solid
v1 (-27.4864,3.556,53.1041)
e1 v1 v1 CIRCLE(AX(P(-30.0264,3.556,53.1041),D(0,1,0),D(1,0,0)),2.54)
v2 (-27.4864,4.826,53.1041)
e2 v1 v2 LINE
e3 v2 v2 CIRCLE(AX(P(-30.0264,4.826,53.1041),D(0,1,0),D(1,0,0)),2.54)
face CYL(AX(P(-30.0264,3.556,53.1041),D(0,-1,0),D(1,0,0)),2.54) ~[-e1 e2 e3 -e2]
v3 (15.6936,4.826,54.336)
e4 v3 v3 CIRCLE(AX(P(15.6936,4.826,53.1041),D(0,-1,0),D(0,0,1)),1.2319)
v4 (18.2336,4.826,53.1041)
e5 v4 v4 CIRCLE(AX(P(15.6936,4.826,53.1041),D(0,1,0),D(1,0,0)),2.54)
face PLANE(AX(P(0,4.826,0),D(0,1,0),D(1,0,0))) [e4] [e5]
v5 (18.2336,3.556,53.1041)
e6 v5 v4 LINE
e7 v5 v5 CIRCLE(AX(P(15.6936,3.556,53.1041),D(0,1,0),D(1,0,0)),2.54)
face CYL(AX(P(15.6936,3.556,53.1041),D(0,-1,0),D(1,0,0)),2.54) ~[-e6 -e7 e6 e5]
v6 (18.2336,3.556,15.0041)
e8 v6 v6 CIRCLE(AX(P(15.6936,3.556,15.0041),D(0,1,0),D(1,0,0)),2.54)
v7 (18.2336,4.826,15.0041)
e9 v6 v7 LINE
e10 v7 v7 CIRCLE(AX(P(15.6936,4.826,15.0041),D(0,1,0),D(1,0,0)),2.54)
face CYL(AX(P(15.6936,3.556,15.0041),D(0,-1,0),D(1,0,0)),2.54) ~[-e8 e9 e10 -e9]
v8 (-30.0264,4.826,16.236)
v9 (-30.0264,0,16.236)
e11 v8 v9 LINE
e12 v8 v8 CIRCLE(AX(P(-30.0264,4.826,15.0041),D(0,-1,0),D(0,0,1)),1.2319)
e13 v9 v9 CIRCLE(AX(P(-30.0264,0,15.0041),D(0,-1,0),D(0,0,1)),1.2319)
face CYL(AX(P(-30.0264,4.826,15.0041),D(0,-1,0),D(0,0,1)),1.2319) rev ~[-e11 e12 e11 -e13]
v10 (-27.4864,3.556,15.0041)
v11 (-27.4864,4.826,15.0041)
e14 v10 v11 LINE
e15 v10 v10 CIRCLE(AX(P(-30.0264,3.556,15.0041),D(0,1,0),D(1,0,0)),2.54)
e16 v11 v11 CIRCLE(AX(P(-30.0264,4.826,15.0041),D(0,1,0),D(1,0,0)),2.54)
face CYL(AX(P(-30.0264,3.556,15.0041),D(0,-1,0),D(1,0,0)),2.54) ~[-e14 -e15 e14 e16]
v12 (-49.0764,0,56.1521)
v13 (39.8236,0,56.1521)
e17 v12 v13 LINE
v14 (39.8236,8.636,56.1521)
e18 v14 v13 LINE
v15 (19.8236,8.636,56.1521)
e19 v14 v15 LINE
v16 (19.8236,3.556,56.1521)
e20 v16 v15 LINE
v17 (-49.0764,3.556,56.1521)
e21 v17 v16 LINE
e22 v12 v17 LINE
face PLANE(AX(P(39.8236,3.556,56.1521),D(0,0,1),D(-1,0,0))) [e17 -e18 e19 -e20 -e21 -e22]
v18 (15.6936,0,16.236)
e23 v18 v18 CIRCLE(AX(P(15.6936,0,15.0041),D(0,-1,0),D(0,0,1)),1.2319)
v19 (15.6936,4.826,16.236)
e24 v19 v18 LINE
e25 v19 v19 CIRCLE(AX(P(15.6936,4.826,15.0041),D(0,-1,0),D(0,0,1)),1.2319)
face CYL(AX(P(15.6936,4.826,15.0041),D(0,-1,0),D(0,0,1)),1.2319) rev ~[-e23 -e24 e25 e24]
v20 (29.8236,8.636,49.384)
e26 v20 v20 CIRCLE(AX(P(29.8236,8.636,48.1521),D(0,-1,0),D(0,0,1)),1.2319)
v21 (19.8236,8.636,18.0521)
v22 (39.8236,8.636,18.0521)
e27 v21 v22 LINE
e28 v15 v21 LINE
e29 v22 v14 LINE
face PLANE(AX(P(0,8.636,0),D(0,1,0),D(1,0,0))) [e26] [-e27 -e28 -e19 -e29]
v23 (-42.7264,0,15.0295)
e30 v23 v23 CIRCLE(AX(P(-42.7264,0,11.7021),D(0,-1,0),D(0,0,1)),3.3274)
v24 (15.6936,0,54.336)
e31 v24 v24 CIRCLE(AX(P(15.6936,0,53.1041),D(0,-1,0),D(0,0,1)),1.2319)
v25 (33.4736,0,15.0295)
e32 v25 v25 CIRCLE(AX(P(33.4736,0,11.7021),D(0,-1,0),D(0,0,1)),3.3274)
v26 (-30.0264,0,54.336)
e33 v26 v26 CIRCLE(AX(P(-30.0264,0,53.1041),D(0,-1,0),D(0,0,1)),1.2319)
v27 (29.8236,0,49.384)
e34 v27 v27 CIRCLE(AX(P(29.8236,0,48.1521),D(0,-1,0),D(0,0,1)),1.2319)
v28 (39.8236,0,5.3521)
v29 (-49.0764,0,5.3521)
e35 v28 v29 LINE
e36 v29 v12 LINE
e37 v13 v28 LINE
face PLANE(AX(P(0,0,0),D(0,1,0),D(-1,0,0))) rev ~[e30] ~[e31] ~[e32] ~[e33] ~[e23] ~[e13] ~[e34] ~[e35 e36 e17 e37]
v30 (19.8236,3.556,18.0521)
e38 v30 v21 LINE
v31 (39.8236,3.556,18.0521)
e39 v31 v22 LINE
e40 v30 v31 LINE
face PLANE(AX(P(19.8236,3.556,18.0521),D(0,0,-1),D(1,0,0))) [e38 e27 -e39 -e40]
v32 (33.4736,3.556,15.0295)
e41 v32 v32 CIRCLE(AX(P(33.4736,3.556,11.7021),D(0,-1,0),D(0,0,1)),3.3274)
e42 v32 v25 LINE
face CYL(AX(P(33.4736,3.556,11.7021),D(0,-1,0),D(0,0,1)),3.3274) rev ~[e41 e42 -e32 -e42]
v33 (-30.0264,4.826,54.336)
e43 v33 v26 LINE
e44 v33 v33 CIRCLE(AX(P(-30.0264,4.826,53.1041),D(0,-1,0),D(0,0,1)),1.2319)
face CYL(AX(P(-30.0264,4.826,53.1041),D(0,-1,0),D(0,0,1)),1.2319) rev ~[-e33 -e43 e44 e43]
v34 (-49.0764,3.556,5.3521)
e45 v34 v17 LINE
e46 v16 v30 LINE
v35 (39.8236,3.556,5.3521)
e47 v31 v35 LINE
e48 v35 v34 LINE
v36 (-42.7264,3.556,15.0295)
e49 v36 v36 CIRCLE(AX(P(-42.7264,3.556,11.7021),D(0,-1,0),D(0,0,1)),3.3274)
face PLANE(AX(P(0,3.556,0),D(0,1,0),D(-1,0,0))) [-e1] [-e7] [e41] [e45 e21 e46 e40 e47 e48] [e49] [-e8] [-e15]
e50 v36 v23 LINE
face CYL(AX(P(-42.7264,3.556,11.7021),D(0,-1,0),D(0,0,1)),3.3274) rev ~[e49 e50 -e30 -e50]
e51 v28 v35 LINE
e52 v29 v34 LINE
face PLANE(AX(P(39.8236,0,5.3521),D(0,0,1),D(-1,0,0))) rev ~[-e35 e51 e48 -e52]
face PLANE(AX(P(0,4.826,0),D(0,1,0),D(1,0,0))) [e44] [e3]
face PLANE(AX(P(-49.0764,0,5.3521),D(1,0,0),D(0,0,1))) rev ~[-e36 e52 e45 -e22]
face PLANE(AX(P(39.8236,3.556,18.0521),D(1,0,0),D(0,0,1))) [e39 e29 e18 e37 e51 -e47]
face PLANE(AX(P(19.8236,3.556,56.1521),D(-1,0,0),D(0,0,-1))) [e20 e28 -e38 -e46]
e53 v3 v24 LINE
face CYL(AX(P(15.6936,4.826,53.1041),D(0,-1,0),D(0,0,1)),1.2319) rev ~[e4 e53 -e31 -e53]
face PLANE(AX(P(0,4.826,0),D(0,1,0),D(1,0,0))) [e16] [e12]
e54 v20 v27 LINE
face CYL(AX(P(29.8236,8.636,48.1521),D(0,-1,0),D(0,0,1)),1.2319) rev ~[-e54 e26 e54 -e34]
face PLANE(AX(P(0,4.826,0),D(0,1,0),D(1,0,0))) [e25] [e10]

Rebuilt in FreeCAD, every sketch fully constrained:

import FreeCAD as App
import Part
import Sketcher

V = App.Vector
Q = App.Units.Quantity

doc = App.newDocument("Part")
body = doc.addObject("PartDesign::Body", "Body")

sketch1 = body.newObject("Sketcher::SketchObject", "Sketch")
sketch1.AttachmentSupport = (doc.getObject("XZ_Plane"), [""])
sketch1.MapMode = "FlatFace"
sketch1.addGeometry(Part.LineSegment(V(-49.0764, 5.3521, 0), V(-49.0764, 56.1521, 0)), False)
sketch1.addGeometry(Part.LineSegment(V(-49.0764, 56.1521, 0), V(39.8236, 56.1521, 0)), False)
sketch1.addGeometry(Part.LineSegment(V(39.8236, 56.1521, 0), V(39.8236, 5.3521, 0)), False)
sketch1.addGeometry(Part.LineSegment(V(39.8236, 5.3521, 0), V(-49.0764, 5.3521, 0)), False)
sketch1.addConstraint(Sketcher.Constraint("Coincident", 0, 2, 1, 1))
sketch1.addConstraint(Sketcher.Constraint("Coincident", 1, 2, 2, 1))
sketch1.addConstraint(Sketcher.Constraint("Coincident", 2, 2, 3, 1))
sketch1.addConstraint(Sketcher.Constraint("Coincident", 3, 2, 0, 1))
sketch1.addConstraint(Sketcher.Constraint("Vertical", 0))
sketch1.addConstraint(Sketcher.Constraint("Horizontal", 1))
sketch1.addConstraint(Sketcher.Constraint("Vertical", 2))
sketch1.addConstraint(Sketcher.Constraint("Horizontal", 3))
sketch1.addConstraint(Sketcher.Constraint("DistanceY", 0, 1, 0, 2, Q("2 in")))
sketch1.addConstraint(Sketcher.Constraint("DistanceX", 1, 1, 1, 2, Q("3.5 in")))
sketch1.addConstraint(Sketcher.Constraint("DistanceX", 0, 2, -1, 1, Q("49.0764 mm")))
sketch1.addConstraint(Sketcher.Constraint("DistanceY", -1, 1, 0, 2, Q("2.2107087 in")))
pad1 = body.newObject("PartDesign::Pad", "Pad")
pad1.Profile = sketch1
pad1.Length = Q("0.14 in")
pad1.Reversed = True

sketch2 = body.newObject("Sketcher::SketchObject", "Sketch001")
sketch2.AttachmentSupport = (doc.getObject("XZ_Plane"), [""])
sketch2.MapMode = "FlatFace"
sketch2.AttachmentOffset = App.Placement(V(0, 0, -0.14 * 25.4), App.Rotation())
sketch2.addGeometry(Part.Circle(V(-42.7264, 11.7021, 0), V(0, 0, 1), 3.3274), False)
sketch2.addGeometry(Part.Circle(V(33.4736, 11.7021, 0), V(0, 0, 1), 3.3274), False)
sketch2.addConstraint(Sketcher.Constraint("Equal", 0, 1))
sketch2.addConstraint(Sketcher.Constraint("Horizontal", 0, 3, 1, 3))
sketch2.addConstraint(Sketcher.Constraint("Diameter", 0, Q("0.262 in")))
sketch2.addConstraint(Sketcher.Constraint("DistanceX", 0, 3, 1, 3, Q("3 in")))
sketch2.addConstraint(Sketcher.Constraint("DistanceX", 0, 3, -1, 1, Q("42.7264 mm")))
sketch2.addConstraint(Sketcher.Constraint("DistanceY", -1, 1, 0, 3, Q("0.4607087 in")))
doc.recompute()
hole = body.newObject("PartDesign::Hole", "Hole")
hole.Profile = sketch2
hole.ThreadType = "None"
hole.Diameter = Q("0.262 in")
hole.DepthType = "ThroughAll"
hole.Reversed = True

sketch3 = body.newObject("Sketcher::SketchObject", "Sketch002")
sketch3.AttachmentSupport = (doc.getObject("XZ_Plane"), [""])
sketch3.MapMode = "FlatFace"
sketch3.AttachmentOffset = App.Placement(V(0, 0, -0.14 * 25.4), App.Rotation())
sketch3.addGeometry(Part.Circle(V(-30.0264, 53.1041, 0), V(0, 0, 1), 2.54), False)
sketch3.addGeometry(Part.Circle(V(-30.0264, 15.0041, 0), V(0, 0, 1), 2.54), False)
sketch3.addGeometry(Part.Circle(V(15.6936, 53.1041, 0), V(0, 0, 1), 2.54), False)
sketch3.addGeometry(Part.Circle(V(15.6936, 15.0041, 0), V(0, 0, 1), 2.54), False)
sketch3.addConstraint(Sketcher.Constraint("Equal", 0, 1))
sketch3.addConstraint(Sketcher.Constraint("Equal", 1, 2))
sketch3.addConstraint(Sketcher.Constraint("Equal", 2, 3))
sketch3.addConstraint(Sketcher.Constraint("Horizontal", 0, 3, 2, 3))
sketch3.addConstraint(Sketcher.Constraint("Horizontal", 1, 3, 3, 3))
sketch3.addConstraint(Sketcher.Constraint("Vertical", 0, 3, 1, 3))
sketch3.addConstraint(Sketcher.Constraint("Vertical", 2, 3, 3, 3))
sketch3.addConstraint(Sketcher.Constraint("Diameter", 0, Q("0.2 in")))
sketch3.addConstraint(Sketcher.Constraint("DistanceY", 1, 3, 0, 3, Q("1.5 in")))
sketch3.addConstraint(Sketcher.Constraint("DistanceX", 0, 3, 2, 3, Q("1.8 in")))
sketch3.addConstraint(Sketcher.Constraint("DistanceX", 0, 3, -1, 1, Q("30.0264 mm")))
sketch3.addConstraint(Sketcher.Constraint("DistanceY", -1, 1, 0, 3, Q("2.0907087 in")))
pad2 = body.newObject("PartDesign::Pad", "Pad001")
pad2.Profile = sketch3
pad2.Length = Q("0.05 in")
pad2.Reversed = True

sketch4 = body.newObject("Sketcher::SketchObject", "Sketch003")
sketch4.AttachmentSupport = (doc.getObject("XZ_Plane"), [""])
sketch4.MapMode = "FlatFace"
sketch4.AttachmentOffset = App.Placement(V(0, 0, -0.19 * 25.4), App.Rotation())
sketch4.addGeometry(Part.Circle(V(-30.0264, 53.1041, 0), V(0, 0, 1), 1.2319), False)
sketch4.addGeometry(Part.Circle(V(-30.0264, 15.0041, 0), V(0, 0, 1), 1.2319), False)
sketch4.addGeometry(Part.Circle(V(15.6936, 15.0041, 0), V(0, 0, 1), 1.2319), False)
sketch4.addGeometry(Part.Circle(V(15.6936, 53.1041, 0), V(0, 0, 1), 1.2319), False)
sketch4.addConstraint(Sketcher.Constraint("Equal", 0, 1))
sketch4.addConstraint(Sketcher.Constraint("Equal", 1, 2))
sketch4.addConstraint(Sketcher.Constraint("Equal", 2, 3))
sketch4.addConstraint(Sketcher.Constraint("Horizontal", 1, 3, 2, 3))
sketch4.addConstraint(Sketcher.Constraint("Horizontal", 0, 3, 3, 3))
sketch4.addConstraint(Sketcher.Constraint("Vertical", 0, 3, 1, 3))
sketch4.addConstraint(Sketcher.Constraint("Vertical", 2, 3, 3, 3))
sketch4.addConstraint(Sketcher.Constraint("Diameter", 0, Q("0.097 in")))
sketch4.addConstraint(Sketcher.Constraint("DistanceY", 1, 3, 0, 3, Q("1.5 in")))
sketch4.addConstraint(Sketcher.Constraint("DistanceX", 1, 3, 2, 3, Q("1.8 in")))
sketch4.addConstraint(Sketcher.Constraint("DistanceX", 0, 3, -1, 1, Q("30.0264 mm")))
sketch4.addConstraint(Sketcher.Constraint("DistanceY", -1, 1, 0, 3, Q("2.0907087 in")))
doc.recompute()
hole2 = body.newObject("PartDesign::Hole", "Hole001")
hole2.Profile = sketch4
hole2.ThreadType = "None"
hole2.Diameter = Q("0.097 in")
hole2.DepthType = "ThroughAll"
hole2.Reversed = True

sketch5 = body.newObject("Sketcher::SketchObject", "Sketch004")
sketch5.AttachmentSupport = (doc.getObject("XZ_Plane"), [""])
sketch5.MapMode = "FlatFace"
sketch5.AttachmentOffset = App.Placement(V(0, 0, -0.14 * 25.4), App.Rotation())
sketch5.addGeometry(Part.LineSegment(V(39.8236, 18.0521, 0), V(19.8236, 18.0521, 0)), False)
sketch5.addGeometry(Part.LineSegment(V(19.8236, 18.0521, 0), V(19.8236, 56.1521, 0)), False)
sketch5.addGeometry(Part.LineSegment(V(19.8236, 56.1521, 0), V(39.8236, 56.1521, 0)), False)
sketch5.addGeometry(Part.LineSegment(V(39.8236, 56.1521, 0), V(39.8236, 18.0521, 0)), False)
sketch5.addConstraint(Sketcher.Constraint("Coincident", 0, 2, 1, 1))
sketch5.addConstraint(Sketcher.Constraint("Coincident", 1, 2, 2, 1))
sketch5.addConstraint(Sketcher.Constraint("Coincident", 2, 2, 3, 1))
sketch5.addConstraint(Sketcher.Constraint("Coincident", 3, 2, 0, 1))
sketch5.addConstraint(Sketcher.Constraint("Horizontal", 0))
sketch5.addConstraint(Sketcher.Constraint("Vertical", 1))
sketch5.addConstraint(Sketcher.Constraint("Horizontal", 2))
sketch5.addConstraint(Sketcher.Constraint("Vertical", 3))
sketch5.addConstraint(Sketcher.Constraint("DistanceX", 0, 2, 0, 1, Q("0.7874 in")))
sketch5.addConstraint(Sketcher.Constraint("DistanceY", 1, 1, 1, 2, Q("1.5 in")))
sketch5.addConstraint(Sketcher.Constraint("DistanceX", -1, 1, 0, 2, Q("19.8236 mm")))
sketch5.addConstraint(Sketcher.Constraint("DistanceY", -1, 1, 0, 2, Q("0.7107087 in")))
pad3 = body.newObject("PartDesign::Pad", "Pad002")
pad3.Profile = sketch5
pad3.Length = Q("0.2 in")
pad3.Reversed = True

sketch6 = body.newObject("Sketcher::SketchObject", "Sketch005")
sketch6.AttachmentSupport = (doc.getObject("XZ_Plane"), [""])
sketch6.MapMode = "FlatFace"
sketch6.AttachmentOffset = App.Placement(V(0, 0, -0.34 * 25.4), App.Rotation())
sketch6.addGeometry(Part.Circle(V(29.8236, 48.1521, 0), V(0, 0, 1), 1.2319), False)
sketch6.addConstraint(Sketcher.Constraint("Diameter", 0, Q("0.097 in")))
sketch6.addConstraint(Sketcher.Constraint("DistanceX", -1, 1, 0, 3, Q("29.8236 mm")))
sketch6.addConstraint(Sketcher.Constraint("DistanceY", -1, 1, 0, 3, Q("48.152 mm")))
doc.recompute()
hole3 = body.newObject("PartDesign::Hole", "Hole002")
hole3.Profile = sketch6
hole3.ThreadType = "None"
hole3.Diameter = Q("0.097 in")
hole3.DepthType = "ThroughAll"
hole3.Reversed = True

doc.recompute()
